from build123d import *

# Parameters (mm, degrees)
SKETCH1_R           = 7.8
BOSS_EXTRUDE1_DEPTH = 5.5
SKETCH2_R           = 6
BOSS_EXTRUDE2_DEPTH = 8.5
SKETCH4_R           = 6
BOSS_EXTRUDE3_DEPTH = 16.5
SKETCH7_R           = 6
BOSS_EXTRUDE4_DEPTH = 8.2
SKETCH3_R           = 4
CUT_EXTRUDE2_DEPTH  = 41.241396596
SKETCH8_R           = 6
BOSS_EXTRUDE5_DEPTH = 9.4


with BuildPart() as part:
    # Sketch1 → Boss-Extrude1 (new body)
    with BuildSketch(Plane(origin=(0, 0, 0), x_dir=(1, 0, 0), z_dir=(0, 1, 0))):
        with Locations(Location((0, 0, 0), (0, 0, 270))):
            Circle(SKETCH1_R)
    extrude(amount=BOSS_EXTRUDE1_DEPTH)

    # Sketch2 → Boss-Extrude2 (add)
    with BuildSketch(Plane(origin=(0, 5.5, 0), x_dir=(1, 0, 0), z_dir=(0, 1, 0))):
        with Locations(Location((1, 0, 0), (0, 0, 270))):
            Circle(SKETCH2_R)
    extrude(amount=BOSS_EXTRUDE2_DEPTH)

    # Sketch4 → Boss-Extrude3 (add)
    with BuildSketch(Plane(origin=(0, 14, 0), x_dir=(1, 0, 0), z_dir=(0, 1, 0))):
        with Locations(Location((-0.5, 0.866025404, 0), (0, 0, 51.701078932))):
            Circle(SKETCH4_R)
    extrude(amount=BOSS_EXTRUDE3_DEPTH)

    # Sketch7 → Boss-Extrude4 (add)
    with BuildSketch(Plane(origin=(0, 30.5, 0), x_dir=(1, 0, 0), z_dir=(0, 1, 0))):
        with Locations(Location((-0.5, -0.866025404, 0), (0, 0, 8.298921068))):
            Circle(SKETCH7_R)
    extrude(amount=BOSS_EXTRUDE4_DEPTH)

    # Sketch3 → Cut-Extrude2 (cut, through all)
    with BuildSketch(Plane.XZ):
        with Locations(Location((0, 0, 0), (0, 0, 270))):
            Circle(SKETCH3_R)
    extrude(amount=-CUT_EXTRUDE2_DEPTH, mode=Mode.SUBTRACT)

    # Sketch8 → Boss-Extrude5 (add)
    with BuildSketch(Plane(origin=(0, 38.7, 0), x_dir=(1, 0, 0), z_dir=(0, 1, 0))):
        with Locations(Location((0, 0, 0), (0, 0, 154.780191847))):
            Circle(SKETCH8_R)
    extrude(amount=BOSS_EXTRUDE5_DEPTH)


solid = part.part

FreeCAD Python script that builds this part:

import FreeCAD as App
import Part
import Sketcher
from FreeCAD import Vector

doc = App.newDocument("Part")
body = doc.addObject("PartDesign::Body", "Body")

# Sketch on XZ plane
sketch1 = body.newObject("Sketcher::SketchObject", "Sketch")
sketch1.AttachmentSupport = (doc.getObject("XZ_Plane"), [""])
sketch1.MapMode = "FlatFace"
sketch1.addGeometry(Part.Circle(Vector(0, 0, 0), Vector(0, 0, 1), 8), False)
sketch1.addConstraint([
    Sketcher.Constraint("Coincident", 0, 3, -1, 1),
    Sketcher.Constraint("Diameter", 0, 15.6),
])
pad1 = body.newObject("PartDesign::Pad", "Pad")
pad1.Profile = sketch1
pad1.Length = 5.5
pad1.Reversed = True

# Sketch on XZ plane
sketch2 = body.newObject("Sketcher::SketchObject", "Sketch001")
sketch2.AttachmentSupport = (doc.getObject("XZ_Plane"), [""])
sketch2.MapMode = "FlatFace"
sketch2.AttachmentOffset = App.Placement(Vector(0, 0, -5.5), App.Rotation())
sketch2.addGeometry(Part.Circle(Vector(1, 0, 0), Vector(0, 0, 1), 6), False)
sketch2.addConstraint([
    Sketcher.Constraint("PointOnObject", 0, 3, -1),
    Sketcher.Constraint("Diameter", 0, 12.0),
    Sketcher.Constraint("DistanceX", -1, 1, 0, 3, 1.0),
])
pad2 = body.newObject("PartDesign::Pad", "Pad001")
pad2.Profile = sketch2
pad2.Length = 8.5
pad2.Reversed = True

# Sketch on XZ plane
sketch3 = body.newObject("Sketcher::SketchObject", "Sketch002")
sketch3.AttachmentSupport = (doc.getObject("XZ_Plane"), [""])
sketch3.MapMode = "FlatFace"
sketch3.AttachmentOffset = App.Placement(Vector(0, 0, -14), App.Rotation())
sketch3.addGeometry(Part.Circle(Vector(0, -1, 0), Vector(0, 0, 1), 6), False)
sketch3.addConstraint([
    Sketcher.Constraint("Diameter", 0, 12.0),
    Sketcher.Constraint("DistanceX", 0, 3, -1, 1, 0.5),
    Sketcher.Constraint("DistanceY", 0, 3, -1, 1, 0.866025),
])
pad3 = body.newObject("PartDesign::Pad", "Pad002")
pad3.Profile = sketch3
pad3.Length = 16.5
pad3.Reversed = True

# Sketch on XZ plane
sketch4 = body.newObject("Sketcher::SketchObject", "Sketch003")
sketch4.AttachmentSupport = (doc.getObject("XZ_Plane"), [""])
sketch4.MapMode = "FlatFace"
sketch4.AttachmentOffset = App.Placement(Vector(0, 0, -30.5), App.Rotation())
sketch4.addGeometry(Part.Circle(Vector(0, 1, 0), Vector(0, 0, 1), 6), False)
sketch4.addConstraint([
    Sketcher.Constraint("Diameter", 0, 12.0),
    Sketcher.Constraint("DistanceX", 0, 3, -1, 1, 0.5),
    Sketcher.Constraint("DistanceY", -1, 1, 0, 3, 0.866025),
])
pad4 = body.newObject("PartDesign::Pad", "Pad003")
pad4.Profile = sketch4
pad4.Length = 8.2
pad4.Reversed = True

# Sketch on XZ plane
sketch5 = body.newObject("Sketcher::SketchObject", "Sketch004")
sketch5.AttachmentSupport = (doc.getObject("XZ_Plane"), [""])
sketch5.MapMode = "FlatFace"
sketch5.addGeometry(Part.Circle(Vector(0, 0, 0), Vector(0, 0, 1), 4), False)
sketch5.addConstraint([
    Sketcher.Constraint("Coincident", 0, 3, -1, 1),
    Sketcher.Constraint("Diameter", 0, 8.0),
])
pocket1 = body.newObject("PartDesign::Pocket", "Pocket")
pocket1.Profile = sketch5
pocket1.Type = "ThroughAll"

# Sketch on XZ plane
sketch6 = body.newObject("Sketcher::SketchObject", "Sketch005")
sketch6.AttachmentSupport = (doc.getObject("XZ_Plane"), [""])
sketch6.MapMode = "FlatFace"
sketch6.AttachmentOffset = App.Placement(Vector(0, 0, -38.7), App.Rotation())
sketch6.addGeometry(Part.Circle(Vector(0, 0, 0), Vector(0, 0, 1), 6), False)
sketch6.addConstraint([
    Sketcher.Constraint("Coincident", 0, 3, -1, 1),
    Sketcher.Constraint("Diameter", 0, 12.0),
])
pad5 = body.newObject("PartDesign::Pad", "Pad004")
pad5.Profile = sketch6
pad5.Length = 9.4
pad5.Reversed = True

doc.recompute()
